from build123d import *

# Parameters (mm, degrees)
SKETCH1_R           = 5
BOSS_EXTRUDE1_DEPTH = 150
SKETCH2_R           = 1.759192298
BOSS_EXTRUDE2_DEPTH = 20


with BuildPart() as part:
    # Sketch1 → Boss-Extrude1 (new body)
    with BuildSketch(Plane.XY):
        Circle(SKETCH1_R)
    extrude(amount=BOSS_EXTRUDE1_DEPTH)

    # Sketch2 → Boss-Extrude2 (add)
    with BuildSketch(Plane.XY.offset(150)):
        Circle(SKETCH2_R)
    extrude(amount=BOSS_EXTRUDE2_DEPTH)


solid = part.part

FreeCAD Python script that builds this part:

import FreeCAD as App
import Part
import Sketcher
Q = App.Units.Quantity

doc = App.newDocument("Part")
params = doc.addObject("Spreadsheet::Sheet", "Params")
for row, (alias, value) in enumerate([
    ("sketch1_diameter", "10 mm"),
    ("pad1_length", "150 mm"),
    ("pad2_length", "20 mm"),
], start=1):
    params.set(f"A{row}", alias)
    params.set(f"B{row}", "=" + value)
    params.setAlias(f"B{row}", alias)

body = doc.addObject("PartDesign::Body", "Body")

# Sketch on XY plane
sketch1 = body.newObject("Sketcher::SketchObject", "Sketch")
sketch1.AttachmentSupport = (doc.getObject("XY_Plane"), [""])
sketch1.MapMode = "FlatFace"
sketch1.addGeometry(Part.Circle(App.Vector(0, 0, 0), App.Vector(0, 0, 1), 5), False)
sketch1.addConstraint([
    Sketcher.Constraint("Coincident", 0, 3, -1, 1),
    Sketcher.Constraint("Diameter", 0, Q("10 mm")),
])
sketch1.setExpression("Constraints[1]", "Params.sketch1_diameter")
pad1 = body.newObject("PartDesign::Pad", "Pad")
pad1.Profile = sketch1
pad1.setExpression("Length", "Params.pad1_length")

# Sketch on XY plane
sketch2 = body.newObject("Sketcher::SketchObject", "Sketch001")
sketch2.AttachmentSupport = (doc.getObject("XY_Plane"), [""])
sketch2.MapMode = "FlatFace"
sketch2.AttachmentOffset = App.Placement(App.Vector(0, 0, 150), App.Rotation())
sketch2.addGeometry(Part.Circle(App.Vector(0, 0, 0), App.Vector(0, 0, 1), 1.8), False)
sketch2.addConstraint([
    Sketcher.Constraint("Coincident", 0, 3, -1, 1),
    Sketcher.Constraint("Diameter", 0, Q("3.518385 mm")),
])
pad2 = body.newObject("PartDesign::Pad", "Pad001")
pad2.Profile = sketch2
pad2.setExpression("Length", "Params.pad2_length")

doc.recompute()
